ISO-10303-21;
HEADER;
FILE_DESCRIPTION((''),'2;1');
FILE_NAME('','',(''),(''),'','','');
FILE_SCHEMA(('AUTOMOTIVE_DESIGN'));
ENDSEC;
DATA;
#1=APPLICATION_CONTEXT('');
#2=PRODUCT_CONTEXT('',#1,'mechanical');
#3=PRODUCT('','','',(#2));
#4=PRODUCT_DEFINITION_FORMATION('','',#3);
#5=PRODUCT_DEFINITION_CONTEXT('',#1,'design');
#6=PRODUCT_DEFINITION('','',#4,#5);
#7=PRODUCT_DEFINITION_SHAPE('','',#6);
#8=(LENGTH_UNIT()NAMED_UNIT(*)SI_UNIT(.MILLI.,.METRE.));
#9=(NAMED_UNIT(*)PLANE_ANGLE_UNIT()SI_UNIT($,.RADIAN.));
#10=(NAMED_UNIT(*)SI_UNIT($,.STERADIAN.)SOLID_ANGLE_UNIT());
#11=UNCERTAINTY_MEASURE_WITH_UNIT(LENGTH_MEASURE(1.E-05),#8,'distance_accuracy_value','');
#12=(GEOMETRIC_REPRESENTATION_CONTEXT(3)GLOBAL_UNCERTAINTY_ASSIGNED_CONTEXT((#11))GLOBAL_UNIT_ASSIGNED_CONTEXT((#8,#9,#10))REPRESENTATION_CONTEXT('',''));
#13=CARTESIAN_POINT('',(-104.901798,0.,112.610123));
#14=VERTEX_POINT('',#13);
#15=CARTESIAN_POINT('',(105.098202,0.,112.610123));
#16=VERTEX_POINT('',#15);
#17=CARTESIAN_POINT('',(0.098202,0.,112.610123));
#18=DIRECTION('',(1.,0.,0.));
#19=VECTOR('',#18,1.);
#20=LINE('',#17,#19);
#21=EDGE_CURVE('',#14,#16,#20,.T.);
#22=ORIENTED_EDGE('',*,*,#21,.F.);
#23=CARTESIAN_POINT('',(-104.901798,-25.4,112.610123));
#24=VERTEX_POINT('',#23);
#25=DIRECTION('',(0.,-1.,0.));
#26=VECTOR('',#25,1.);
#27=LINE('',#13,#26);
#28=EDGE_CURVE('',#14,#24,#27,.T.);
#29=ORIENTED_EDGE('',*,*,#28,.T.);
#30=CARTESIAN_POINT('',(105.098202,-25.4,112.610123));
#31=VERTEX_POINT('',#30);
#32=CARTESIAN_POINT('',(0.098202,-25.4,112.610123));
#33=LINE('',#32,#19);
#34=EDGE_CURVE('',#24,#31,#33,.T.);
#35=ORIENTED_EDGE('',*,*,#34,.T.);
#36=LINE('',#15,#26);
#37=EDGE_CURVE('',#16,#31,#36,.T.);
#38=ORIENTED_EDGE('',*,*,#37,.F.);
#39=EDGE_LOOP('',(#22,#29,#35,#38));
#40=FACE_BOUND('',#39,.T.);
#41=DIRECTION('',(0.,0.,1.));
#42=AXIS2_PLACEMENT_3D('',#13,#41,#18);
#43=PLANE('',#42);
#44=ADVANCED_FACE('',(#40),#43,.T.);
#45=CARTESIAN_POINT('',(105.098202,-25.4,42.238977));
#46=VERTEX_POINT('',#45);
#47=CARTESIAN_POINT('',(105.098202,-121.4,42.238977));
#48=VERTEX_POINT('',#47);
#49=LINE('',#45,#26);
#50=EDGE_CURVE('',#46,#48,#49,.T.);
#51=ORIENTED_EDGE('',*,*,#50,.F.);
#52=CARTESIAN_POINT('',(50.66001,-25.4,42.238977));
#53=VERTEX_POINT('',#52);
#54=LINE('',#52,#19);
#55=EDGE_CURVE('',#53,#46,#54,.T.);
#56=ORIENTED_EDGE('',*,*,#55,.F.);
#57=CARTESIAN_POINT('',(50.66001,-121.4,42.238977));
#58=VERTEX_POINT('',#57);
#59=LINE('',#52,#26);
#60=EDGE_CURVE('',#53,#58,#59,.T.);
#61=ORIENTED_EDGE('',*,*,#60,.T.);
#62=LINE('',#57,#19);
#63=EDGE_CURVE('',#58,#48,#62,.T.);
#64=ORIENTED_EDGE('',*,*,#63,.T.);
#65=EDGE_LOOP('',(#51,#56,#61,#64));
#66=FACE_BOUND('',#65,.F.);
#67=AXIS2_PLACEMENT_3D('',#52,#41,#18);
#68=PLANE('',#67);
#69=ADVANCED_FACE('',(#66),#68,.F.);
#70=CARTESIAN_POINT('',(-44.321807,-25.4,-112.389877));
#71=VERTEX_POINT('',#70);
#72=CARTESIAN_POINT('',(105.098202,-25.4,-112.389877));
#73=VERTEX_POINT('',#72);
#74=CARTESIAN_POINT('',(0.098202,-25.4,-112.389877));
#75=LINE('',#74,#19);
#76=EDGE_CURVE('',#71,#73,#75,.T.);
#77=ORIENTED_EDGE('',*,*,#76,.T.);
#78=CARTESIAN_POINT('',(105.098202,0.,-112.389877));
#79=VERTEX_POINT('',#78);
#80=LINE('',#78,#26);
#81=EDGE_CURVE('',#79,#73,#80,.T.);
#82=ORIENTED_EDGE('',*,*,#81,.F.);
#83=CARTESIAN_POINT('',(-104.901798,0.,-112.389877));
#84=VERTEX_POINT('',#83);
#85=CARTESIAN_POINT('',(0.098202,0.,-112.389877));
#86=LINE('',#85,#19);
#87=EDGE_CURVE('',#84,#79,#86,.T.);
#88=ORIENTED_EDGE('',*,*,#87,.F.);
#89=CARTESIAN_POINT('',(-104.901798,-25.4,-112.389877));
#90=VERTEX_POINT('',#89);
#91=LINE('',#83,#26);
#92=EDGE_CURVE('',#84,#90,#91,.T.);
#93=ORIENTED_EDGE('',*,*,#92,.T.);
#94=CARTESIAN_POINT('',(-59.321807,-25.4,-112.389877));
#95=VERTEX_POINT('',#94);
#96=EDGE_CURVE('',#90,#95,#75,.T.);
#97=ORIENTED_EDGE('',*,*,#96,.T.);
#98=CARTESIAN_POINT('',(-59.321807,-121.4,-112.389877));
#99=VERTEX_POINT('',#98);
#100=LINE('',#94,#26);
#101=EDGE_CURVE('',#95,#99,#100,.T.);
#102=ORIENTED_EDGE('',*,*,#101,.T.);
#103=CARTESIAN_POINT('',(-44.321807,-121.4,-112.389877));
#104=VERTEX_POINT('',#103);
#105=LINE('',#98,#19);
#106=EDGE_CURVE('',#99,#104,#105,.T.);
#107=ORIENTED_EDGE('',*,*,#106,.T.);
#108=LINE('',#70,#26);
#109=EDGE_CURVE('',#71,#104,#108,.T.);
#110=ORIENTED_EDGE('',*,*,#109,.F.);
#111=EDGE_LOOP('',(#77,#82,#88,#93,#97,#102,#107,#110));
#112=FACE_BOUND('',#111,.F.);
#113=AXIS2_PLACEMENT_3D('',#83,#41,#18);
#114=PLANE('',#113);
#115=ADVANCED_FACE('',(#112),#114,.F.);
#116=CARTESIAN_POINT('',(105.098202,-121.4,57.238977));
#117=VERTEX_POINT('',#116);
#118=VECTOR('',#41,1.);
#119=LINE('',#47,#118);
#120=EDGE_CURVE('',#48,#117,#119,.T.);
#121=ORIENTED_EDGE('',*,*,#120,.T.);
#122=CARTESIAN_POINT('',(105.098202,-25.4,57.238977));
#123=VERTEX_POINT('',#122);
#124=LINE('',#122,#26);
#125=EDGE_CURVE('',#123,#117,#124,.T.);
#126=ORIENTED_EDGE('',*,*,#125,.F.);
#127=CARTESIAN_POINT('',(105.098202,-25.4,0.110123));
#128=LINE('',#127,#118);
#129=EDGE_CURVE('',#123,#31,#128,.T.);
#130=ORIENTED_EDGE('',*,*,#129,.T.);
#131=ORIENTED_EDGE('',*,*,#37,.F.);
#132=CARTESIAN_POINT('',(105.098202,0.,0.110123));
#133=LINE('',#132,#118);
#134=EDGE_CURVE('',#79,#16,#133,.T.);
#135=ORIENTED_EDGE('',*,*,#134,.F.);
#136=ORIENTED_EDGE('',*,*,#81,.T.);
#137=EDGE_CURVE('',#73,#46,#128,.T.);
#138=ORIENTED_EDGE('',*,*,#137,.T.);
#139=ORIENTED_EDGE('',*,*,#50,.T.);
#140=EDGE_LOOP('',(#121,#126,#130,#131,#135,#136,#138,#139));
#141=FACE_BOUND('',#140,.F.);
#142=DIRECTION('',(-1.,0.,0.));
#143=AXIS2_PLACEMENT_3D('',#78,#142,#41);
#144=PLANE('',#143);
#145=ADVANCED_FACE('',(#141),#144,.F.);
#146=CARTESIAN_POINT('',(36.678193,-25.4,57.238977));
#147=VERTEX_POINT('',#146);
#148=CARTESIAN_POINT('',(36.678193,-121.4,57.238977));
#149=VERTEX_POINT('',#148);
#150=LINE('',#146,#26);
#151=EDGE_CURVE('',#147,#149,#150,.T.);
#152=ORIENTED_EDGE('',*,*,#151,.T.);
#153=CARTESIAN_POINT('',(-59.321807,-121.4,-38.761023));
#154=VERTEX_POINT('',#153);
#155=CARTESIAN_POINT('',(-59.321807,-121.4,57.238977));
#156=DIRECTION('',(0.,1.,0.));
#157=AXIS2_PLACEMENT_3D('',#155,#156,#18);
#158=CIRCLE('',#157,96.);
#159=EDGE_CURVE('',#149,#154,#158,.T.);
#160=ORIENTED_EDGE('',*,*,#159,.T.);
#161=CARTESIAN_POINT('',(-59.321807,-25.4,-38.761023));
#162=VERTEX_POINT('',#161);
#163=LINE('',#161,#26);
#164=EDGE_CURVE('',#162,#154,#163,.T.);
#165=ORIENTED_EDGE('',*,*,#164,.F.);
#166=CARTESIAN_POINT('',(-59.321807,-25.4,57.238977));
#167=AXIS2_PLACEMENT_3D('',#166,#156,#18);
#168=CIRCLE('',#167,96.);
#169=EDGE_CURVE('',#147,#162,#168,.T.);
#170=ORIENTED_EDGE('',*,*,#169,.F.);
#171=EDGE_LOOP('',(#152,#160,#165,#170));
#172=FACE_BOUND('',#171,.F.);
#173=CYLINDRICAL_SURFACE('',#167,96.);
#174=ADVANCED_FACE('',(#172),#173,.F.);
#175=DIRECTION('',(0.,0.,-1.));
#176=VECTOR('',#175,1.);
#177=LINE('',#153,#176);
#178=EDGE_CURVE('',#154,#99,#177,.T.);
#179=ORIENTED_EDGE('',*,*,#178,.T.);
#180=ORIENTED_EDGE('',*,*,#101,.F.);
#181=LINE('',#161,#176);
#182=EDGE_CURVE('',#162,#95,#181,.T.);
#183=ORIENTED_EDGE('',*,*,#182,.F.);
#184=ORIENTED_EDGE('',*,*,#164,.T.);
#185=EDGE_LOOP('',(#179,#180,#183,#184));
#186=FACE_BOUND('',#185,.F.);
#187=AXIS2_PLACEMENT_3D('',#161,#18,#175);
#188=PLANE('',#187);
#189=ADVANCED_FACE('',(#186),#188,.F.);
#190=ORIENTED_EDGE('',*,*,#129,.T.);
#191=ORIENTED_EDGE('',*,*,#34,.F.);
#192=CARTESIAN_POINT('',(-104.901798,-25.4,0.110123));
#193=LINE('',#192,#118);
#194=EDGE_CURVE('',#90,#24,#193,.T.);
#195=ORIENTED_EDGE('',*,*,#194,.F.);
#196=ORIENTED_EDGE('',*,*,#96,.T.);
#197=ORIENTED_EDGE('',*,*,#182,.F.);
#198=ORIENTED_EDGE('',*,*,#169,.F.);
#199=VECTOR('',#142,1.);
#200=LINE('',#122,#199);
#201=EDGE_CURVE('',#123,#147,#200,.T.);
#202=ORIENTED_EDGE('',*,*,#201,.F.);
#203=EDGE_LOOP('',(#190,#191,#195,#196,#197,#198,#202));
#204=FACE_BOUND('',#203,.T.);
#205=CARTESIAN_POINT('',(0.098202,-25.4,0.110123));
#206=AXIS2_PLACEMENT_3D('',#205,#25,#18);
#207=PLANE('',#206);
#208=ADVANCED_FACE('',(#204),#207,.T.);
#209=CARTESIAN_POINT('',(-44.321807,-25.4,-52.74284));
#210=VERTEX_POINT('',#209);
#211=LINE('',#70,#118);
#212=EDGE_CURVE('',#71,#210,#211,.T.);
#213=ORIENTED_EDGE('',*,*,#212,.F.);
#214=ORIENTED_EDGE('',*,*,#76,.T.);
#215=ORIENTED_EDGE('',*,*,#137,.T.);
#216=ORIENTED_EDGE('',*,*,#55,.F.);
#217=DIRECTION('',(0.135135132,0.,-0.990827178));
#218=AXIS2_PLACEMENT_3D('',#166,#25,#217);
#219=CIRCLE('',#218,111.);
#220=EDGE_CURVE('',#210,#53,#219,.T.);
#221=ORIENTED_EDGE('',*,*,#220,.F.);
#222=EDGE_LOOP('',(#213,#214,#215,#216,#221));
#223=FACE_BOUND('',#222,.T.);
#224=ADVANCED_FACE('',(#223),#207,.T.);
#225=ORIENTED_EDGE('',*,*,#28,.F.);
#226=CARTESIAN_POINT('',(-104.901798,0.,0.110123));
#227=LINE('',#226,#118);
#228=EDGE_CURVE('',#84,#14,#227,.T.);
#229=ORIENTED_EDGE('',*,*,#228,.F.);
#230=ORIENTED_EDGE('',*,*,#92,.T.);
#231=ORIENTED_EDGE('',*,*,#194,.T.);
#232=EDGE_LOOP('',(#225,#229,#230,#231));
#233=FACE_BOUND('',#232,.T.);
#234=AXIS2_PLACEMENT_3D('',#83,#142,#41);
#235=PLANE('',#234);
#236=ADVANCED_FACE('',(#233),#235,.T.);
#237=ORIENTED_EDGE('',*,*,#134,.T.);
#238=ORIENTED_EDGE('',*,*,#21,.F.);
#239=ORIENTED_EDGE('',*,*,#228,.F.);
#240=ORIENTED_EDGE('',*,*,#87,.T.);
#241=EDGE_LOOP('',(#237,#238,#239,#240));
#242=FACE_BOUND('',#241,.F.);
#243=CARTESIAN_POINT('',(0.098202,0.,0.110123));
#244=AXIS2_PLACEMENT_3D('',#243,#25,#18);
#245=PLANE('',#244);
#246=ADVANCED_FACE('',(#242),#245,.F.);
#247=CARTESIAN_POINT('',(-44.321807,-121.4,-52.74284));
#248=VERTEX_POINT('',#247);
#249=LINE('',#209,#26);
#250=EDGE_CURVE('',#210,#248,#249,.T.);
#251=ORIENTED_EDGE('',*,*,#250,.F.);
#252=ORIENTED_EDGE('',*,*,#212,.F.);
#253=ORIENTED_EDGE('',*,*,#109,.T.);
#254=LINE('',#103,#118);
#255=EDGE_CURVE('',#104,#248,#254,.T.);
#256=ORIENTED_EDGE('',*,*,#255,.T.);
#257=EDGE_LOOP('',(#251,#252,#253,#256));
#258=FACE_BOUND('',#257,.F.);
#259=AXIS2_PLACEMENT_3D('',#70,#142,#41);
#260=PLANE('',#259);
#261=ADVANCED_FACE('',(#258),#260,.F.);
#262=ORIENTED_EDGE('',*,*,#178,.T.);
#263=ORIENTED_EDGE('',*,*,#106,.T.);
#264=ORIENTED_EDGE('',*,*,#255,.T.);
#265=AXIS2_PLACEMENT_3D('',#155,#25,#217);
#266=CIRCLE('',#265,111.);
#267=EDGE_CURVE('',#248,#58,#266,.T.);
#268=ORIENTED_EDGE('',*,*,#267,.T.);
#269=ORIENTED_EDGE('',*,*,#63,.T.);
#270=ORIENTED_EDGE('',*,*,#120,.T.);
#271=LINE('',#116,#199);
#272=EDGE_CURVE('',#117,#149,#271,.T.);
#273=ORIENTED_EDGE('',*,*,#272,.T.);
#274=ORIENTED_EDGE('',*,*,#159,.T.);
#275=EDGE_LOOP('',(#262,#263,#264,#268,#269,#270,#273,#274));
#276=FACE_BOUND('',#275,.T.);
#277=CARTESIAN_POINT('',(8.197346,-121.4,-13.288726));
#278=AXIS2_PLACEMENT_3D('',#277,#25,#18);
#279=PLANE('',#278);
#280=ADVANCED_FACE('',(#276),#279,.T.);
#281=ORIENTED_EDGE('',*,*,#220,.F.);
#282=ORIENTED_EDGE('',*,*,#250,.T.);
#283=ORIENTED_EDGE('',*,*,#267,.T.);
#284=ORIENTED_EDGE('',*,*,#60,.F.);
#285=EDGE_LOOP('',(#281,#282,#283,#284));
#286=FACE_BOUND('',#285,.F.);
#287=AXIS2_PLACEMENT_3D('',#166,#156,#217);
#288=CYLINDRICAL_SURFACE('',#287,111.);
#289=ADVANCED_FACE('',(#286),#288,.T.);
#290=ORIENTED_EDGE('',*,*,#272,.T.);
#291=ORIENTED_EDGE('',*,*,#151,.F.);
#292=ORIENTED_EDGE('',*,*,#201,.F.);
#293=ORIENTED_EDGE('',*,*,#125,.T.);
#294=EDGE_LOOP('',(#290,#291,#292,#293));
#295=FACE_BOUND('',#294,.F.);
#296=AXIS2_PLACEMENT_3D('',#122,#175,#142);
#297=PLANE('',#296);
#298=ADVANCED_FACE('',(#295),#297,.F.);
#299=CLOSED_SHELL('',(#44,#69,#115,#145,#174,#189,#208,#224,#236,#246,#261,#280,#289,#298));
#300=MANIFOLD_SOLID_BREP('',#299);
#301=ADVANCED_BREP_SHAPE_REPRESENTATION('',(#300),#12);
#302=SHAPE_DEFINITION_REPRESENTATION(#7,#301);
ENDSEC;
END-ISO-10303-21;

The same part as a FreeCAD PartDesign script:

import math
import FreeCAD as App
import Part
import Sketcher
from FreeCAD import Vector


def add_polygon(sketch, points):
    """Adds a closed chain of lines whose ends are joined by coincident constraints."""
    first, n = sketch.GeometryCount, len(points)
    for a, b in zip(points, points[1:] + points[:1]):
        sketch.addGeometry(Part.LineSegment(App.Vector(*a, 0), App.Vector(*b, 0)), False)
    for i in range(n):
        sketch.addConstraint(Sketcher.Constraint("Coincident", first + i, 2, first + (i + 1) % n, 1))

doc = App.newDocument("Part")
body = doc.addObject("PartDesign::Body", "Body")

# Sketch on XZ plane
sketch1 = body.newObject("Sketcher::SketchObject", "Sketch")
sketch1.AttachmentSupport = (doc.getObject("XZ_Plane"), [""])
sketch1.MapMode = "FlatFace"
add_polygon(sketch1, [(-130, 121), (-130, -104), (80, -104), (80, 121)])  # lines 0-3
sketch1.addConstraint(Sketcher.Constraint("Vertical", 0))
sketch1.addConstraint(Sketcher.Constraint("Horizontal", 1))
sketch1.addConstraint(Sketcher.Constraint("Vertical", 2))
sketch1.addConstraint(Sketcher.Constraint("Horizontal", 3))
sketch1.addConstraint(Sketcher.Constraint("DistanceX", 1, 1, 1, 2, 210.0))
sketch1.addConstraint(Sketcher.Constraint("DistanceY", 0, 2, 0, 1, 225.0))
sketch1.addConstraint(Sketcher.Constraint("DistanceX", 0, 2, -1, 1, 130.301798))
sketch1.addConstraint(Sketcher.Constraint("DistanceY", 0, 2, -1, 1, 103.626877))
pad1 = body.newObject("PartDesign::Pad", "Pad")
pad1.Profile = sketch1
pad1.Length = 25.4
body2 = doc.addObject("PartDesign::Body", "Body001")
doc.recompute()

body.Placement = App.Placement(Vector(25.4, 0, -8.763), App.Rotation(Vector(0, 0, 1), 0))
boolean = body2.newObject("PartDesign::Boolean", "Boolean")
boolean.Type = "Fuse"
boolean.addObjects([body])

# Sketch on XZ plane
sketch2 = body2.newObject("Sketcher::SketchObject", "Sketch001")
sketch2.AttachmentSupport = (doc.getObject("XZ_Plane001"), [""])
sketch2.MapMode = "FlatFace"
sketch2.AttachmentOffset = App.Placement(Vector(0, 0, 25.4), App.Rotation())
sketch2.addGeometry(Part.LineSegment(Vector(-59, -39, 0), Vector(-59, -112, 0)), False)
sketch2.addGeometry(Part.LineSegment(Vector(-59, -112, 0), Vector(-44, -112, 0)), False)
sketch2.addGeometry(Part.LineSegment(Vector(-44, -112, 0), Vector(-44, -53, 0)), False)
sketch2.addGeometry(Part.ArcOfCircle(Part.Circle(Vector(-59, 57, 0), Vector(0, 0, 1), 111), math.radians(-82), math.radians(-8)), False)
sketch2.addGeometry(Part.LineSegment(Vector(51, 42, 0), Vector(105, 42, 0)), False)
sketch2.addGeometry(Part.LineSegment(Vector(105, 42, 0), Vector(105, 57, 0)), False)
sketch2.addGeometry(Part.LineSegment(Vector(105, 57, 0), Vector(37, 57, 0)), False)
sketch2.addGeometry(Part.ArcOfCircle(Part.Circle(Vector(-59, 57, 0), Vector(0, 0, 1), 96), math.radians(-90), math.radians(0)), False)
sketch2.addConstraint(Sketcher.Constraint("Coincident", 0, 2, 1, 1))
sketch2.addConstraint(Sketcher.Constraint("Coincident", 1, 2, 2, 1))
sketch2.addConstraint(Sketcher.Constraint("Coincident", 2, 2, 3, 1))
sketch2.addConstraint(Sketcher.Constraint("Coincident", 3, 2, 4, 1))
sketch2.addConstraint(Sketcher.Constraint("Coincident", 4, 2, 5, 1))
sketch2.addConstraint(Sketcher.Constraint("Coincident", 5, 2, 6, 1))
sketch2.addConstraint(Sketcher.Constraint("Coincident", 6, 2, 7, 2))
sketch2.addConstraint(Sketcher.Constraint("Coincident", 7, 1, 0, 1))
sketch2.addConstraint(Sketcher.Constraint("Vertical", 0))
sketch2.addConstraint(Sketcher.Constraint("Horizontal", 1))
sketch2.addConstraint(Sketcher.Constraint("Vertical", 2))
sketch2.addConstraint(Sketcher.Constraint("Horizontal", 4))
sketch2.addConstraint(Sketcher.Constraint("Vertical", 5))
sketch2.addConstraint(Sketcher.Constraint("Horizontal", 6))
sketch2.addConstraint(Sketcher.Constraint("Coincident", 7, 3, 3, 3))
sketch2.addConstraint(Sketcher.Constraint("Horizontal", 7, 3, 5, 2))
sketch2.addConstraint(Sketcher.Constraint("Vertical", 7, 3, 0, 2))
sketch2.addConstraint(Sketcher.Constraint("Equal", 1, 5))
sketch2.addConstraint(Sketcher.Constraint("Radius", 3, 111.0))
sketch2.addConstraint(Sketcher.Constraint("Radius", 7, 96.0))
sketch2.addConstraint(Sketcher.Constraint("DistanceX", 1, 1, 1, 2, 15.0))
sketch2.addConstraint(Sketcher.Constraint("DistanceX", 6, 2, 6, 1, 68.420009))
sketch2.addConstraint(Sketcher.Constraint("DistanceX", -1, 1, 4, 2, 105.098202))
sketch2.addConstraint(Sketcher.Constraint("DistanceY", 0, 2, 0, 1, 73.628854))
sketch2.addConstraint(Sketcher.Constraint("DistanceY", 2, 2, -1, 1, 52.74284))
pad2 = body2.newObject("PartDesign::Pad", "Pad001")
pad2.Profile = sketch2
pad2.Length = 96

doc.recompute()
